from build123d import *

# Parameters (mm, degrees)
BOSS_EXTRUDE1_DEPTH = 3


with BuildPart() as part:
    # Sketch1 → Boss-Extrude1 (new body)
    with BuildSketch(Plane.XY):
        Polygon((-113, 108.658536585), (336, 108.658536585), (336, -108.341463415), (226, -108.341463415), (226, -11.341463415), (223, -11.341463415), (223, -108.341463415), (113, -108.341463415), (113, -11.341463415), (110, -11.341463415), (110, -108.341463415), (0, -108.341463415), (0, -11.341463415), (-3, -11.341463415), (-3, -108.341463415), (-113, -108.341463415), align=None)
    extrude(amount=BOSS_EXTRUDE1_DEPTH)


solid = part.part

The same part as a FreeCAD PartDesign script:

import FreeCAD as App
import Part
import Sketcher
from FreeCAD import Vector


def add_polygon(sketch, points):
    """Adds a closed chain of lines whose ends are joined by coincident constraints."""
    first, n = sketch.GeometryCount, len(points)
    for a, b in zip(points, points[1:] + points[:1]):
        sketch.addGeometry(Part.LineSegment(App.Vector(*a, 0), App.Vector(*b, 0)), False)
    for i in range(n):
        sketch.addConstraint(Sketcher.Constraint("Coincident", first + i, 2, first + (i + 1) % n, 1))

doc = App.newDocument("Part")
body = doc.addObject("PartDesign::Body", "Body")

# Sketch on XY plane
sketch1 = body.newObject("Sketcher::SketchObject", "Sketch")
sketch1.AttachmentSupport = (doc.getObject("XY_Plane"), [""])
sketch1.MapMode = "FlatFace"
add_polygon(sketch1, [(336, 108.7), (-113, 108.7), (-113, -108.3), (-3, -108.3), (-3, -11.3), (0, -11.3), (0, -108.3), (110, -108.3), (110, -11.3), (113, -11.3), (113, -108.3), (223, -108.3), (223, -11.3), (226, -11.3), (226, -108.3), (336, -108.3)])  # lines 0-15
sketch1.addConstraint([
    Sketcher.Constraint("Horizontal", 0),
    Sketcher.Constraint("Vertical", 1),
    Sketcher.Constraint("Horizontal", 2),
    Sketcher.Constraint("Vertical", 3),
    Sketcher.Constraint("Horizontal", 4),
    Sketcher.Constraint("Vertical", 5),
    Sketcher.Constraint("Horizontal", 6),
    Sketcher.Constraint("Vertical", 7),
    Sketcher.Constraint("Horizontal", 8),
    Sketcher.Constraint("Vertical", 9),
    Sketcher.Constraint("Horizontal", 10),
    Sketcher.Constraint("Vertical", 11),
    Sketcher.Constraint("Horizontal", 12),
    Sketcher.Constraint("Vertical", 13),
    Sketcher.Constraint("Horizontal", 14),
    Sketcher.Constraint("Vertical", 15),
    Sketcher.Constraint("Symmetric", 1, 2, 9, 2, -2),
    Sketcher.Constraint("PointOnObject", 4, 2, -2),
    Sketcher.Constraint("Horizontal", 2, 2, 5, 2),
    Sketcher.Constraint("Horizontal", 4, 2, 7, 2),
    Sketcher.Constraint("Horizontal", 8, 2, 11, 2),
    Sketcher.Constraint("Horizontal", 10, 2, 13, 2),
    Sketcher.Constraint("Equal", 2, 6),
    Sketcher.Constraint("Equal", 6, 10),
    Sketcher.Constraint("Equal", 8, 12),
    Sketcher.Constraint("Equal", 10, 14),
    Sketcher.Constraint("DistanceX", 0, 2, 0, 1, 449.0),
    Sketcher.Constraint("DistanceX", 2, 1, 2, 2, 110.0),
    Sketcher.Constraint("DistanceY", 1, 2, 1, 1, 217.0),
    Sketcher.Constraint("DistanceY", 3, 1, 3, 2, 97.0),
    Sketcher.Constraint("DistanceY", -1, 1, 0, 2, 108.658537),
])
pad1 = body.newObject("PartDesign::Pad", "Pad")
pad1.Profile = sketch1
pad1.Length = 3

doc.recompute()
